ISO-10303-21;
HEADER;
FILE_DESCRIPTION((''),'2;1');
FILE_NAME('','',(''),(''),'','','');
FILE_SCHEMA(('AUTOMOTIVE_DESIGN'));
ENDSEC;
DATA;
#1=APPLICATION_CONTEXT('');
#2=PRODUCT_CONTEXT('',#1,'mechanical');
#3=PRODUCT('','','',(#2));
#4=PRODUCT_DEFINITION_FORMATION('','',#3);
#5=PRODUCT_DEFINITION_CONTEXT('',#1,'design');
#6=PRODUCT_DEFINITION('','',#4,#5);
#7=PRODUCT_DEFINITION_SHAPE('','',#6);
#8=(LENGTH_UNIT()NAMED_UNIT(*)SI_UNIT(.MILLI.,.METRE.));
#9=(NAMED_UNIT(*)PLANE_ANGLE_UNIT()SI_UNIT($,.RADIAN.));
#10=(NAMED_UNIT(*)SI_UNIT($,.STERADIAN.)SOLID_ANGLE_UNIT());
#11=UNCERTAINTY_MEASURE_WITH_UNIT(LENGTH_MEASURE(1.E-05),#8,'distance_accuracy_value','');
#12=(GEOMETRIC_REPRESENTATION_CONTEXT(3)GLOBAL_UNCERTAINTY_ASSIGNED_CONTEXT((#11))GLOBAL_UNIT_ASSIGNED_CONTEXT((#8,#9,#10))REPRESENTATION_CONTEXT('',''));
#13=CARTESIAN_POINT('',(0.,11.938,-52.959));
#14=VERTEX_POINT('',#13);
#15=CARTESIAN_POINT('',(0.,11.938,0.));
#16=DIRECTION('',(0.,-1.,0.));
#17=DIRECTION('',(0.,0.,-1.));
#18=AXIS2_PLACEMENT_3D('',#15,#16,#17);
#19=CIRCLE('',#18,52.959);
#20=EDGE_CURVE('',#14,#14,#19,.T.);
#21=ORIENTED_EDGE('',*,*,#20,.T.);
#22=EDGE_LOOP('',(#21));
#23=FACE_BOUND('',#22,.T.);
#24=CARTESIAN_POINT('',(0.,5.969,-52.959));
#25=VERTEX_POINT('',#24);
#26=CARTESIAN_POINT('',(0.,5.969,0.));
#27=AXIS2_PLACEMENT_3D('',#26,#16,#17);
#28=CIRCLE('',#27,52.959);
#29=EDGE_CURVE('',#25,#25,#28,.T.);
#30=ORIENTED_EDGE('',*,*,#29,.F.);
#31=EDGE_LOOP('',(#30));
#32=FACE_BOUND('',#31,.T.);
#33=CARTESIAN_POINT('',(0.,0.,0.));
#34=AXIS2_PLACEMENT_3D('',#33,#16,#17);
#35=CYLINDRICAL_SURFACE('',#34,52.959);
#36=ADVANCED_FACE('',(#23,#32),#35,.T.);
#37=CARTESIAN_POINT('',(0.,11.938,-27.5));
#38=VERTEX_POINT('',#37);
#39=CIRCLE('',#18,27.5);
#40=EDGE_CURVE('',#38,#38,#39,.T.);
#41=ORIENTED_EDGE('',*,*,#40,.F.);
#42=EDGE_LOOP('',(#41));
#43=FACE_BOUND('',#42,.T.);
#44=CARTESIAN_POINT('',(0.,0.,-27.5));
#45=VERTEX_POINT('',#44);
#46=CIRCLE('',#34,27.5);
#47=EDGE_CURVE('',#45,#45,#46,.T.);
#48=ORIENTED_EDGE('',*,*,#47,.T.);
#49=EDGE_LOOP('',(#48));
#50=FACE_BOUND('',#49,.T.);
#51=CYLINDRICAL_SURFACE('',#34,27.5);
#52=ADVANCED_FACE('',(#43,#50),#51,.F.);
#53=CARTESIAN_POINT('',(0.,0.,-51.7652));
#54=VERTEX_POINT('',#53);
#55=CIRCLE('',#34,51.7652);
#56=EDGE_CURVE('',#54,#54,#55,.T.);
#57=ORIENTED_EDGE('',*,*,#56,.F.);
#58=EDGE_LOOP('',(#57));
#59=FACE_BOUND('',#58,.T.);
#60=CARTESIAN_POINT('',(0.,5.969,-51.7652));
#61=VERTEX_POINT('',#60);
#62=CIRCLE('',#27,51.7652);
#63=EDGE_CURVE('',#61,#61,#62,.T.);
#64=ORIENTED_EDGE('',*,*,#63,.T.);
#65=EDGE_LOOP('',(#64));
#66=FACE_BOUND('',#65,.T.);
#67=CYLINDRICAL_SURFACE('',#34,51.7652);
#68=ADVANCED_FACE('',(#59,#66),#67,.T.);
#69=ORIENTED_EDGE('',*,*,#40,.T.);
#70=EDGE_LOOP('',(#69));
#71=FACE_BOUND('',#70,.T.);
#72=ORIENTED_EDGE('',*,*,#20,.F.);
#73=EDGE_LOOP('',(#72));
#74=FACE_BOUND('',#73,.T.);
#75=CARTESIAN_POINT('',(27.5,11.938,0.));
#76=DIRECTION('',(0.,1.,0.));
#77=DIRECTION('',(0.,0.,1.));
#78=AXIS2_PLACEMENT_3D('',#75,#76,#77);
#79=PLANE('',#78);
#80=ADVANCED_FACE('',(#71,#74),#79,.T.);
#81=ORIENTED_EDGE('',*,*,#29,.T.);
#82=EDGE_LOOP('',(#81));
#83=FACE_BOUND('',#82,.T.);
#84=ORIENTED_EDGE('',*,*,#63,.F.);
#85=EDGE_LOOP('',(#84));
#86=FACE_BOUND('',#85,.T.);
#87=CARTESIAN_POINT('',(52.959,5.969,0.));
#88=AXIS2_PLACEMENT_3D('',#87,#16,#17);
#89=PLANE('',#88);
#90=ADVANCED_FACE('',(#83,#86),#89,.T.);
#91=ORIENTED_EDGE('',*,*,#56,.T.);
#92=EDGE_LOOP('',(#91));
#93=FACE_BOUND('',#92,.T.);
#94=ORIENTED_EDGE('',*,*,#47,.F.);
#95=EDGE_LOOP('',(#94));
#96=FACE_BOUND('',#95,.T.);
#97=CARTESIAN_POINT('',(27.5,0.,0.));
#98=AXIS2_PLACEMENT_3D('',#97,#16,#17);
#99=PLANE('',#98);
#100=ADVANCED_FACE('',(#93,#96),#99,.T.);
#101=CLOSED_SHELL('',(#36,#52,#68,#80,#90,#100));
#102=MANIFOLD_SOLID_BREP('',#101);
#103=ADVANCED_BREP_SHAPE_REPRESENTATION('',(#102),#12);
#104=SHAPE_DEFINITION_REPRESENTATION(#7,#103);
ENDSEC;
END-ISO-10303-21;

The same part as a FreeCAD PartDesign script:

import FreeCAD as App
import Part
import Sketcher
Q = App.Units.Quantity


def add_polygon(sketch, points):
    """Adds a closed chain of lines whose ends are joined by coincident constraints."""
    first, n = sketch.GeometryCount, len(points)
    for a, b in zip(points, points[1:] + points[:1]):
        sketch.addGeometry(Part.LineSegment(App.Vector(*a, 0), App.Vector(*b, 0)), False)
    for i in range(n):
        sketch.addConstraint(Sketcher.Constraint("Coincident", first + i, 2, first + (i + 1) % n, 1))

doc = App.newDocument("Part")
body = doc.addObject("PartDesign::Body", "Body")

sketch1 = body.newObject("Sketcher::SketchObject", "Sketch")
sketch1.AttachmentSupport = (doc.getObject("XY_Plane"), [""])
sketch1.MapMode = "FlatFace"
add_polygon(sketch1, [(52.959, 11.938), (27.5, 11.938), (27.5, 0), (51.7652, 0), (51.7652, 5.969), (52.959, 5.969)])
sketch1.addConstraint(Sketcher.Constraint("Horizontal", 0))
sketch1.addConstraint(Sketcher.Constraint("Vertical", 1))
sketch1.addConstraint(Sketcher.Constraint("Horizontal", 2))
sketch1.addConstraint(Sketcher.Constraint("Vertical", 3))
sketch1.addConstraint(Sketcher.Constraint("Horizontal", 4))
sketch1.addConstraint(Sketcher.Constraint("Vertical", 5))
sketch1.addConstraint(Sketcher.Constraint("PointOnObject", 1, 2, -1))
sketch1.addConstraint(Sketcher.Constraint("Equal", 3, 5))
sketch1.addConstraint(Sketcher.Constraint("DistanceY", 1, 2, 1, 1, Q("0.47 in")))
sketch1.addConstraint(Sketcher.Constraint("DistanceX", 4, 1, 4, 2, Q("0.047 in")))
sketch1.addConstraint(Sketcher.Constraint("DistanceX", -1, 1, 2, 2, Q("2.038 in")))
sketch1.addConstraint(Sketcher.Constraint("DistanceX", 0, 2, 0, 1, 25.459))
revolution = body.newObject("PartDesign::Revolution", "Revolution")
revolution.Profile = sketch1
revolution.ReferenceAxis = (sketch1, ["V_Axis"])
revolution.Angle = 360

doc.recompute()
